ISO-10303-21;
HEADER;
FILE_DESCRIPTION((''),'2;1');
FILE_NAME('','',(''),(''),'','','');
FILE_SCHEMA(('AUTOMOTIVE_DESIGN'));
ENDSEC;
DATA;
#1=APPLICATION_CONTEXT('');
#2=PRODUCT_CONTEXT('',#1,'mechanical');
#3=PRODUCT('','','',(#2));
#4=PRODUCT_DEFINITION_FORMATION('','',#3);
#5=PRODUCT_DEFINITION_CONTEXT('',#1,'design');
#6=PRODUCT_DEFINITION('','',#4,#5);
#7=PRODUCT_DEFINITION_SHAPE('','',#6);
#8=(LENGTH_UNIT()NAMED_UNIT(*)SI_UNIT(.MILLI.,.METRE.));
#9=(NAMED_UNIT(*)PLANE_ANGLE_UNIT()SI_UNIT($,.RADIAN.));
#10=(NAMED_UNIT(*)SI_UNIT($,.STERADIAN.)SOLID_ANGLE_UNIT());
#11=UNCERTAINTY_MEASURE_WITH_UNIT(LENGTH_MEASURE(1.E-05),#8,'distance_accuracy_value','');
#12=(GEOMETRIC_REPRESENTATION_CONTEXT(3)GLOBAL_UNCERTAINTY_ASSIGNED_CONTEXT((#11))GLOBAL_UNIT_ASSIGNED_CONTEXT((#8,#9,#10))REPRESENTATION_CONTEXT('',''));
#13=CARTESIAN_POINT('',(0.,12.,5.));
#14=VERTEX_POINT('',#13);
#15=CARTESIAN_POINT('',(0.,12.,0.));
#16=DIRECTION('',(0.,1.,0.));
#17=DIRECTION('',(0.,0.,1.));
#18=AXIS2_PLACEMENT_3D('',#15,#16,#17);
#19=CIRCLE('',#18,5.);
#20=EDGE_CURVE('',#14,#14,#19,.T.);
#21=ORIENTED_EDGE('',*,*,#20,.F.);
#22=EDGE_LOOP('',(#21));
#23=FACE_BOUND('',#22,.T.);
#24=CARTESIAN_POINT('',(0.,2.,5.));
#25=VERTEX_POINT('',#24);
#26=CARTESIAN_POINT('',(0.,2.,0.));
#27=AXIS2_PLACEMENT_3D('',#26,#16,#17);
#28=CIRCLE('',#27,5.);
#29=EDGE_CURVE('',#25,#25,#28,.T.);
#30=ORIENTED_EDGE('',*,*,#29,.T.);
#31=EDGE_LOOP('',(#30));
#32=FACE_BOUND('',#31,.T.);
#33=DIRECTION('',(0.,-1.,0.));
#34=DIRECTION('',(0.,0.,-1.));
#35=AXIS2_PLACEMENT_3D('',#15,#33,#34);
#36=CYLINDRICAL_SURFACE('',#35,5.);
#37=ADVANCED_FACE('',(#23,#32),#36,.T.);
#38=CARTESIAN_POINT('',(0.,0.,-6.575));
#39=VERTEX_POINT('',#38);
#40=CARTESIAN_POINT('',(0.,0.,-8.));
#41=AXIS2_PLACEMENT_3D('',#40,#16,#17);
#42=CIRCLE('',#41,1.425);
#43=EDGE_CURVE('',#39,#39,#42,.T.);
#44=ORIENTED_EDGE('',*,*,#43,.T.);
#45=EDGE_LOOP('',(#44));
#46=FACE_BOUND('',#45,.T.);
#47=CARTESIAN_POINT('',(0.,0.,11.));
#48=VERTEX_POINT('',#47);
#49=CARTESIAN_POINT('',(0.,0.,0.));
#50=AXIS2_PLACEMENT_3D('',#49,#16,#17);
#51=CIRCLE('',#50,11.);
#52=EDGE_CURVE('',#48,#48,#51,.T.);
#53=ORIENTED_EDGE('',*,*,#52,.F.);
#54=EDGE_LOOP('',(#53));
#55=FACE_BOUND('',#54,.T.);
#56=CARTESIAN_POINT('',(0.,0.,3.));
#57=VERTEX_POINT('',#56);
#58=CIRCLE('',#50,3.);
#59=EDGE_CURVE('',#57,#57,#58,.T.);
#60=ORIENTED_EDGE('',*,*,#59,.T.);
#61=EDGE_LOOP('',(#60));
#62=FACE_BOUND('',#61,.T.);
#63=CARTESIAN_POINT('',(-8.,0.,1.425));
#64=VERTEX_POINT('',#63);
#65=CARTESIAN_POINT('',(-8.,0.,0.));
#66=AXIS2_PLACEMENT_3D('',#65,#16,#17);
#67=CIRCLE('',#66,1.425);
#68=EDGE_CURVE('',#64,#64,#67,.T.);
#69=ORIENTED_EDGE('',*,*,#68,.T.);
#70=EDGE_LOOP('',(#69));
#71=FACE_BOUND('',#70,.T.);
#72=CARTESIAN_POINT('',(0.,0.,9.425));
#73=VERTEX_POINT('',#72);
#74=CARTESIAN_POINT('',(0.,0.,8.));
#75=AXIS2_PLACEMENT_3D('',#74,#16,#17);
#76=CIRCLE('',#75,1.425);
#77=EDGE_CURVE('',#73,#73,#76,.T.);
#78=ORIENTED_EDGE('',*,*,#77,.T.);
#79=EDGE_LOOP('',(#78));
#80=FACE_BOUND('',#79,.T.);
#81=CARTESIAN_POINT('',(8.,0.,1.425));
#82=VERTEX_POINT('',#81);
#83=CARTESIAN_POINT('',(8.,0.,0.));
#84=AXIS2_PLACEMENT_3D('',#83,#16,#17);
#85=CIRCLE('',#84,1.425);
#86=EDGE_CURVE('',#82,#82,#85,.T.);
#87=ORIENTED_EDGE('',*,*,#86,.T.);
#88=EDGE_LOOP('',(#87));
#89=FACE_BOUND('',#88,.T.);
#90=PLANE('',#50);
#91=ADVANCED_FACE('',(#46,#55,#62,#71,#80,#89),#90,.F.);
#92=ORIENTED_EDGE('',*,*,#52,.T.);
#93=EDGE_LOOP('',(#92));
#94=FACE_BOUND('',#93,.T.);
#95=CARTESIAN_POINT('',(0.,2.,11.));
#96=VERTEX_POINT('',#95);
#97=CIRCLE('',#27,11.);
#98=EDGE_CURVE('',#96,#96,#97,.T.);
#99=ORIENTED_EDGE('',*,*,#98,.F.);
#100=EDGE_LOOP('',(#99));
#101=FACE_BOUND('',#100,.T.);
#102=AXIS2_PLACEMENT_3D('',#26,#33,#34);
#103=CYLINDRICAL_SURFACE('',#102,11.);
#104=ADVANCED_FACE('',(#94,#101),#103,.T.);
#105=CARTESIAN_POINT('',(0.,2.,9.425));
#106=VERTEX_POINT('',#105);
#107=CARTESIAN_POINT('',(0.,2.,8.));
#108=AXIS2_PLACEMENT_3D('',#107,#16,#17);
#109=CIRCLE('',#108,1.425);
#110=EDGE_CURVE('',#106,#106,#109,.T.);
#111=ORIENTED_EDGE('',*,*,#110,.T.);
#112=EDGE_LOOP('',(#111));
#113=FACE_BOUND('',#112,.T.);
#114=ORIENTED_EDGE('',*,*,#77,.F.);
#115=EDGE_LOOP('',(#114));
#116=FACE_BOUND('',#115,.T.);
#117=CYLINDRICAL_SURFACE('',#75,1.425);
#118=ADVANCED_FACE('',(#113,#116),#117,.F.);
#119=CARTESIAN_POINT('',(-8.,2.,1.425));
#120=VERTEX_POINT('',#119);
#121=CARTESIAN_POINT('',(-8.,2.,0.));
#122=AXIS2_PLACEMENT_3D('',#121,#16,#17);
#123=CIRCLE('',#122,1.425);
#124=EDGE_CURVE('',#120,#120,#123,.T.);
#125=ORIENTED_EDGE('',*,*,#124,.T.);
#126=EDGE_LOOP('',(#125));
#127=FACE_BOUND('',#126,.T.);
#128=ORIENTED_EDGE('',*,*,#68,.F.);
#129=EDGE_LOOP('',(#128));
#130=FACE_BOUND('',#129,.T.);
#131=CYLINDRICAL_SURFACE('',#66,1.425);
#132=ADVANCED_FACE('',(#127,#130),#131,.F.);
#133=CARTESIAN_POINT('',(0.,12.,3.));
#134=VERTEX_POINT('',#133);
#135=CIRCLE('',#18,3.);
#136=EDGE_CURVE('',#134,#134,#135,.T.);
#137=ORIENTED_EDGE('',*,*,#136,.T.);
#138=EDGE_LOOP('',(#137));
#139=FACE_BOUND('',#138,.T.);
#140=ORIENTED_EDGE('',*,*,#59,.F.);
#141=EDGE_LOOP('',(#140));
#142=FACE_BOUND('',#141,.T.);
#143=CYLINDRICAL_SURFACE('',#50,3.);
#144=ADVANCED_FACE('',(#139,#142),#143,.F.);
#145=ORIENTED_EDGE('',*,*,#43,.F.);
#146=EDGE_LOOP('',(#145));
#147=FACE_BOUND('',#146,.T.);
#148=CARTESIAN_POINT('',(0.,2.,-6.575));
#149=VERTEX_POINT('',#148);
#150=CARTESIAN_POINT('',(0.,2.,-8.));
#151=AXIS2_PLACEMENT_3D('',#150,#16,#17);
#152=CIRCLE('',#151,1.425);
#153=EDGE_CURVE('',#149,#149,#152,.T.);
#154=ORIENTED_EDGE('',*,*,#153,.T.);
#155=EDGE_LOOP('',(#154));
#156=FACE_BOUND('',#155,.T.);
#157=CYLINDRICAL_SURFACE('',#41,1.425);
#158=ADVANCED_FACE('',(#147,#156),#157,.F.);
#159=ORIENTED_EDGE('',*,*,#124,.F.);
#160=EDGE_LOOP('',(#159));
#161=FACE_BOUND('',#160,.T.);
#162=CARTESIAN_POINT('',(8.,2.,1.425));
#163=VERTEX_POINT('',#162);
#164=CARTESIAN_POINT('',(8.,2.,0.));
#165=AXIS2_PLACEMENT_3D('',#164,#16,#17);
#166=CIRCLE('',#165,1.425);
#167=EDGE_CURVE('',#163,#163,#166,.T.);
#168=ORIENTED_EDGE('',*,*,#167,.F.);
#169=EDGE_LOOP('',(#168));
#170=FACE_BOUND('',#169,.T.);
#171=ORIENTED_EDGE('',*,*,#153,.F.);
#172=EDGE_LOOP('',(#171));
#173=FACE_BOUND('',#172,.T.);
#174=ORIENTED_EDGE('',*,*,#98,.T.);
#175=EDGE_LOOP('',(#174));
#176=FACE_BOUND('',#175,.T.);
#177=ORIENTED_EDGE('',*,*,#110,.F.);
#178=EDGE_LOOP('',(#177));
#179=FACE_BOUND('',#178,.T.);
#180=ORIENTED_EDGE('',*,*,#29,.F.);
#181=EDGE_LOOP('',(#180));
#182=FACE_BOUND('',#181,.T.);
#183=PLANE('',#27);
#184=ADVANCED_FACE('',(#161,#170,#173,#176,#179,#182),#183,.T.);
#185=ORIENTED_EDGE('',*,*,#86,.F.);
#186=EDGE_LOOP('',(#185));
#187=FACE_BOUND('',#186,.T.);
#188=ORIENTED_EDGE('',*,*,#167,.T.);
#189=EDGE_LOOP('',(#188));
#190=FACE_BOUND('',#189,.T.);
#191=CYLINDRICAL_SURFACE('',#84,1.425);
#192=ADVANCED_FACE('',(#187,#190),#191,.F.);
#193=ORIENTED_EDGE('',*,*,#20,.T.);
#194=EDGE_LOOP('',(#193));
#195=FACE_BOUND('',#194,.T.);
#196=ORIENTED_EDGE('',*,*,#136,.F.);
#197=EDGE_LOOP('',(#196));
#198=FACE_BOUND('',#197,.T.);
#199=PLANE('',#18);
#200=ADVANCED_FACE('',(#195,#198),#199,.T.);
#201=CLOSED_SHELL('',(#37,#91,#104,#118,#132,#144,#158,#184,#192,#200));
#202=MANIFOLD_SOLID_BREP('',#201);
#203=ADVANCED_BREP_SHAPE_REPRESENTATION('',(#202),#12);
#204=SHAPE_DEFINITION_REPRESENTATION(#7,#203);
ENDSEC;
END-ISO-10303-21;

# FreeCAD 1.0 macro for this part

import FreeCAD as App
import Part
import Sketcher

V = App.Vector

doc = App.newDocument("Part")
body = doc.addObject("PartDesign::Body", "Body")

sketch1 = body.newObject("Sketcher::SketchObject", "Sketch")
sketch1.AttachmentSupport = (doc.getObject("XZ_Plane"), [""])
sketch1.MapMode = "FlatFace"
sketch1.addGeometry(Part.Circle(V(0, 0, 0), V(0, 0, 1), 11), False)
sketch1.addConstraint(Sketcher.Constraint("Coincident", 0, 3, -1, 1))
sketch1.addConstraint(Sketcher.Constraint("Diameter", 0, 22.0))
pad1 = body.newObject("PartDesign::Pad", "Pad")
pad1.Profile = sketch1
pad1.Length = 2
pad1.Reversed = True

sketch2 = body.newObject("Sketcher::SketchObject", "Sketch001")
sketch2.AttachmentSupport = (doc.getObject("XZ_Plane"), [""])
sketch2.MapMode = "FlatFace"
sketch2.AttachmentOffset = App.Placement(V(0, 0, -2), App.Rotation())
sketch2.addGeometry(Part.Circle(V(0, 0, 0), V(0, 0, 1), 5), False)
sketch2.addConstraint(Sketcher.Constraint("Coincident", 0, 3, -1, 1))
sketch2.addConstraint(Sketcher.Constraint("Diameter", 0, 10.0))
pad2 = body.newObject("PartDesign::Pad", "Pad001")
pad2.Profile = sketch2
pad2.Length = 10
pad2.Reversed = True

sketch3 = body.newObject("Sketcher::SketchObject", "Sketch002")
sketch3.AttachmentSupport = (doc.getObject("XZ_Plane"), [""])
sketch3.MapMode = "FlatFace"
sketch3.AttachmentOffset = App.Placement(V(0, 0, -12), App.Rotation())
sketch3.addGeometry(Part.Circle(V(0, 0, 0), V(0, 0, 1), 3), False)
sketch3.addConstraint(Sketcher.Constraint("Coincident", 0, 3, -1, 1))
sketch3.addConstraint(Sketcher.Constraint("Diameter", 0, 6.0))
pocket1 = body.newObject("PartDesign::Pocket", "Pocket")
pocket1.Profile = sketch3
pocket1.Type = "ThroughAll"
pocket1.Reversed = True

sketch4 = body.newObject("Sketcher::SketchObject", "Sketch003")
sketch4.AttachmentSupport = (doc.getObject("XZ_Plane"), [""])
sketch4.MapMode = "FlatFace"
sketch4.AttachmentOffset = App.Placement(V(0, 0, -2), App.Rotation())
sketch4.addGeometry(Part.Circle(V(0, -8, 0), V(0, 0, 1), 1.4), False)
sketch4.addGeometry(Part.Circle(V(8, 0, 0), V(0, 0, 1), 1.4), False)
sketch4.addGeometry(Part.Circle(V(0, 8, 0), V(0, 0, 1), 1.4), False)
sketch4.addGeometry(Part.Circle(V(-8, 0, 0), V(0, 0, 1), 1.4), False)
sketch4.addConstraint(Sketcher.Constraint("Equal", 0, 1))
sketch4.addConstraint(Sketcher.Constraint("Equal", 1, 2))
sketch4.addConstraint(Sketcher.Constraint("Equal", 2, 3))
sketch4.addConstraint(Sketcher.Constraint("Symmetric", 0, 3, 2, 3, -1, 1))
sketch4.addConstraint(Sketcher.Constraint("Symmetric", 1, 3, 3, 3, -1, 1))
sketch4.addConstraint(Sketcher.Constraint("PointOnObject", 0, 3, -2))
sketch4.addConstraint(Sketcher.Constraint("PointOnObject", 1, 3, -1))
sketch4.addConstraint(Sketcher.Constraint("Diameter", 0, 2.85))
sketch4.addConstraint(Sketcher.Constraint("DistanceY", 0, 3, -1, 1, 8.0))
sketch4.addConstraint(Sketcher.Constraint("DistanceX", -1, 1, 1, 3, 8.0))
pocket2 = body.newObject("PartDesign::Pocket", "Pocket001")
pocket2.Profile = sketch4
pocket2.Type = "ThroughAll"
pocket2.Reversed = True

doc.recompute()
